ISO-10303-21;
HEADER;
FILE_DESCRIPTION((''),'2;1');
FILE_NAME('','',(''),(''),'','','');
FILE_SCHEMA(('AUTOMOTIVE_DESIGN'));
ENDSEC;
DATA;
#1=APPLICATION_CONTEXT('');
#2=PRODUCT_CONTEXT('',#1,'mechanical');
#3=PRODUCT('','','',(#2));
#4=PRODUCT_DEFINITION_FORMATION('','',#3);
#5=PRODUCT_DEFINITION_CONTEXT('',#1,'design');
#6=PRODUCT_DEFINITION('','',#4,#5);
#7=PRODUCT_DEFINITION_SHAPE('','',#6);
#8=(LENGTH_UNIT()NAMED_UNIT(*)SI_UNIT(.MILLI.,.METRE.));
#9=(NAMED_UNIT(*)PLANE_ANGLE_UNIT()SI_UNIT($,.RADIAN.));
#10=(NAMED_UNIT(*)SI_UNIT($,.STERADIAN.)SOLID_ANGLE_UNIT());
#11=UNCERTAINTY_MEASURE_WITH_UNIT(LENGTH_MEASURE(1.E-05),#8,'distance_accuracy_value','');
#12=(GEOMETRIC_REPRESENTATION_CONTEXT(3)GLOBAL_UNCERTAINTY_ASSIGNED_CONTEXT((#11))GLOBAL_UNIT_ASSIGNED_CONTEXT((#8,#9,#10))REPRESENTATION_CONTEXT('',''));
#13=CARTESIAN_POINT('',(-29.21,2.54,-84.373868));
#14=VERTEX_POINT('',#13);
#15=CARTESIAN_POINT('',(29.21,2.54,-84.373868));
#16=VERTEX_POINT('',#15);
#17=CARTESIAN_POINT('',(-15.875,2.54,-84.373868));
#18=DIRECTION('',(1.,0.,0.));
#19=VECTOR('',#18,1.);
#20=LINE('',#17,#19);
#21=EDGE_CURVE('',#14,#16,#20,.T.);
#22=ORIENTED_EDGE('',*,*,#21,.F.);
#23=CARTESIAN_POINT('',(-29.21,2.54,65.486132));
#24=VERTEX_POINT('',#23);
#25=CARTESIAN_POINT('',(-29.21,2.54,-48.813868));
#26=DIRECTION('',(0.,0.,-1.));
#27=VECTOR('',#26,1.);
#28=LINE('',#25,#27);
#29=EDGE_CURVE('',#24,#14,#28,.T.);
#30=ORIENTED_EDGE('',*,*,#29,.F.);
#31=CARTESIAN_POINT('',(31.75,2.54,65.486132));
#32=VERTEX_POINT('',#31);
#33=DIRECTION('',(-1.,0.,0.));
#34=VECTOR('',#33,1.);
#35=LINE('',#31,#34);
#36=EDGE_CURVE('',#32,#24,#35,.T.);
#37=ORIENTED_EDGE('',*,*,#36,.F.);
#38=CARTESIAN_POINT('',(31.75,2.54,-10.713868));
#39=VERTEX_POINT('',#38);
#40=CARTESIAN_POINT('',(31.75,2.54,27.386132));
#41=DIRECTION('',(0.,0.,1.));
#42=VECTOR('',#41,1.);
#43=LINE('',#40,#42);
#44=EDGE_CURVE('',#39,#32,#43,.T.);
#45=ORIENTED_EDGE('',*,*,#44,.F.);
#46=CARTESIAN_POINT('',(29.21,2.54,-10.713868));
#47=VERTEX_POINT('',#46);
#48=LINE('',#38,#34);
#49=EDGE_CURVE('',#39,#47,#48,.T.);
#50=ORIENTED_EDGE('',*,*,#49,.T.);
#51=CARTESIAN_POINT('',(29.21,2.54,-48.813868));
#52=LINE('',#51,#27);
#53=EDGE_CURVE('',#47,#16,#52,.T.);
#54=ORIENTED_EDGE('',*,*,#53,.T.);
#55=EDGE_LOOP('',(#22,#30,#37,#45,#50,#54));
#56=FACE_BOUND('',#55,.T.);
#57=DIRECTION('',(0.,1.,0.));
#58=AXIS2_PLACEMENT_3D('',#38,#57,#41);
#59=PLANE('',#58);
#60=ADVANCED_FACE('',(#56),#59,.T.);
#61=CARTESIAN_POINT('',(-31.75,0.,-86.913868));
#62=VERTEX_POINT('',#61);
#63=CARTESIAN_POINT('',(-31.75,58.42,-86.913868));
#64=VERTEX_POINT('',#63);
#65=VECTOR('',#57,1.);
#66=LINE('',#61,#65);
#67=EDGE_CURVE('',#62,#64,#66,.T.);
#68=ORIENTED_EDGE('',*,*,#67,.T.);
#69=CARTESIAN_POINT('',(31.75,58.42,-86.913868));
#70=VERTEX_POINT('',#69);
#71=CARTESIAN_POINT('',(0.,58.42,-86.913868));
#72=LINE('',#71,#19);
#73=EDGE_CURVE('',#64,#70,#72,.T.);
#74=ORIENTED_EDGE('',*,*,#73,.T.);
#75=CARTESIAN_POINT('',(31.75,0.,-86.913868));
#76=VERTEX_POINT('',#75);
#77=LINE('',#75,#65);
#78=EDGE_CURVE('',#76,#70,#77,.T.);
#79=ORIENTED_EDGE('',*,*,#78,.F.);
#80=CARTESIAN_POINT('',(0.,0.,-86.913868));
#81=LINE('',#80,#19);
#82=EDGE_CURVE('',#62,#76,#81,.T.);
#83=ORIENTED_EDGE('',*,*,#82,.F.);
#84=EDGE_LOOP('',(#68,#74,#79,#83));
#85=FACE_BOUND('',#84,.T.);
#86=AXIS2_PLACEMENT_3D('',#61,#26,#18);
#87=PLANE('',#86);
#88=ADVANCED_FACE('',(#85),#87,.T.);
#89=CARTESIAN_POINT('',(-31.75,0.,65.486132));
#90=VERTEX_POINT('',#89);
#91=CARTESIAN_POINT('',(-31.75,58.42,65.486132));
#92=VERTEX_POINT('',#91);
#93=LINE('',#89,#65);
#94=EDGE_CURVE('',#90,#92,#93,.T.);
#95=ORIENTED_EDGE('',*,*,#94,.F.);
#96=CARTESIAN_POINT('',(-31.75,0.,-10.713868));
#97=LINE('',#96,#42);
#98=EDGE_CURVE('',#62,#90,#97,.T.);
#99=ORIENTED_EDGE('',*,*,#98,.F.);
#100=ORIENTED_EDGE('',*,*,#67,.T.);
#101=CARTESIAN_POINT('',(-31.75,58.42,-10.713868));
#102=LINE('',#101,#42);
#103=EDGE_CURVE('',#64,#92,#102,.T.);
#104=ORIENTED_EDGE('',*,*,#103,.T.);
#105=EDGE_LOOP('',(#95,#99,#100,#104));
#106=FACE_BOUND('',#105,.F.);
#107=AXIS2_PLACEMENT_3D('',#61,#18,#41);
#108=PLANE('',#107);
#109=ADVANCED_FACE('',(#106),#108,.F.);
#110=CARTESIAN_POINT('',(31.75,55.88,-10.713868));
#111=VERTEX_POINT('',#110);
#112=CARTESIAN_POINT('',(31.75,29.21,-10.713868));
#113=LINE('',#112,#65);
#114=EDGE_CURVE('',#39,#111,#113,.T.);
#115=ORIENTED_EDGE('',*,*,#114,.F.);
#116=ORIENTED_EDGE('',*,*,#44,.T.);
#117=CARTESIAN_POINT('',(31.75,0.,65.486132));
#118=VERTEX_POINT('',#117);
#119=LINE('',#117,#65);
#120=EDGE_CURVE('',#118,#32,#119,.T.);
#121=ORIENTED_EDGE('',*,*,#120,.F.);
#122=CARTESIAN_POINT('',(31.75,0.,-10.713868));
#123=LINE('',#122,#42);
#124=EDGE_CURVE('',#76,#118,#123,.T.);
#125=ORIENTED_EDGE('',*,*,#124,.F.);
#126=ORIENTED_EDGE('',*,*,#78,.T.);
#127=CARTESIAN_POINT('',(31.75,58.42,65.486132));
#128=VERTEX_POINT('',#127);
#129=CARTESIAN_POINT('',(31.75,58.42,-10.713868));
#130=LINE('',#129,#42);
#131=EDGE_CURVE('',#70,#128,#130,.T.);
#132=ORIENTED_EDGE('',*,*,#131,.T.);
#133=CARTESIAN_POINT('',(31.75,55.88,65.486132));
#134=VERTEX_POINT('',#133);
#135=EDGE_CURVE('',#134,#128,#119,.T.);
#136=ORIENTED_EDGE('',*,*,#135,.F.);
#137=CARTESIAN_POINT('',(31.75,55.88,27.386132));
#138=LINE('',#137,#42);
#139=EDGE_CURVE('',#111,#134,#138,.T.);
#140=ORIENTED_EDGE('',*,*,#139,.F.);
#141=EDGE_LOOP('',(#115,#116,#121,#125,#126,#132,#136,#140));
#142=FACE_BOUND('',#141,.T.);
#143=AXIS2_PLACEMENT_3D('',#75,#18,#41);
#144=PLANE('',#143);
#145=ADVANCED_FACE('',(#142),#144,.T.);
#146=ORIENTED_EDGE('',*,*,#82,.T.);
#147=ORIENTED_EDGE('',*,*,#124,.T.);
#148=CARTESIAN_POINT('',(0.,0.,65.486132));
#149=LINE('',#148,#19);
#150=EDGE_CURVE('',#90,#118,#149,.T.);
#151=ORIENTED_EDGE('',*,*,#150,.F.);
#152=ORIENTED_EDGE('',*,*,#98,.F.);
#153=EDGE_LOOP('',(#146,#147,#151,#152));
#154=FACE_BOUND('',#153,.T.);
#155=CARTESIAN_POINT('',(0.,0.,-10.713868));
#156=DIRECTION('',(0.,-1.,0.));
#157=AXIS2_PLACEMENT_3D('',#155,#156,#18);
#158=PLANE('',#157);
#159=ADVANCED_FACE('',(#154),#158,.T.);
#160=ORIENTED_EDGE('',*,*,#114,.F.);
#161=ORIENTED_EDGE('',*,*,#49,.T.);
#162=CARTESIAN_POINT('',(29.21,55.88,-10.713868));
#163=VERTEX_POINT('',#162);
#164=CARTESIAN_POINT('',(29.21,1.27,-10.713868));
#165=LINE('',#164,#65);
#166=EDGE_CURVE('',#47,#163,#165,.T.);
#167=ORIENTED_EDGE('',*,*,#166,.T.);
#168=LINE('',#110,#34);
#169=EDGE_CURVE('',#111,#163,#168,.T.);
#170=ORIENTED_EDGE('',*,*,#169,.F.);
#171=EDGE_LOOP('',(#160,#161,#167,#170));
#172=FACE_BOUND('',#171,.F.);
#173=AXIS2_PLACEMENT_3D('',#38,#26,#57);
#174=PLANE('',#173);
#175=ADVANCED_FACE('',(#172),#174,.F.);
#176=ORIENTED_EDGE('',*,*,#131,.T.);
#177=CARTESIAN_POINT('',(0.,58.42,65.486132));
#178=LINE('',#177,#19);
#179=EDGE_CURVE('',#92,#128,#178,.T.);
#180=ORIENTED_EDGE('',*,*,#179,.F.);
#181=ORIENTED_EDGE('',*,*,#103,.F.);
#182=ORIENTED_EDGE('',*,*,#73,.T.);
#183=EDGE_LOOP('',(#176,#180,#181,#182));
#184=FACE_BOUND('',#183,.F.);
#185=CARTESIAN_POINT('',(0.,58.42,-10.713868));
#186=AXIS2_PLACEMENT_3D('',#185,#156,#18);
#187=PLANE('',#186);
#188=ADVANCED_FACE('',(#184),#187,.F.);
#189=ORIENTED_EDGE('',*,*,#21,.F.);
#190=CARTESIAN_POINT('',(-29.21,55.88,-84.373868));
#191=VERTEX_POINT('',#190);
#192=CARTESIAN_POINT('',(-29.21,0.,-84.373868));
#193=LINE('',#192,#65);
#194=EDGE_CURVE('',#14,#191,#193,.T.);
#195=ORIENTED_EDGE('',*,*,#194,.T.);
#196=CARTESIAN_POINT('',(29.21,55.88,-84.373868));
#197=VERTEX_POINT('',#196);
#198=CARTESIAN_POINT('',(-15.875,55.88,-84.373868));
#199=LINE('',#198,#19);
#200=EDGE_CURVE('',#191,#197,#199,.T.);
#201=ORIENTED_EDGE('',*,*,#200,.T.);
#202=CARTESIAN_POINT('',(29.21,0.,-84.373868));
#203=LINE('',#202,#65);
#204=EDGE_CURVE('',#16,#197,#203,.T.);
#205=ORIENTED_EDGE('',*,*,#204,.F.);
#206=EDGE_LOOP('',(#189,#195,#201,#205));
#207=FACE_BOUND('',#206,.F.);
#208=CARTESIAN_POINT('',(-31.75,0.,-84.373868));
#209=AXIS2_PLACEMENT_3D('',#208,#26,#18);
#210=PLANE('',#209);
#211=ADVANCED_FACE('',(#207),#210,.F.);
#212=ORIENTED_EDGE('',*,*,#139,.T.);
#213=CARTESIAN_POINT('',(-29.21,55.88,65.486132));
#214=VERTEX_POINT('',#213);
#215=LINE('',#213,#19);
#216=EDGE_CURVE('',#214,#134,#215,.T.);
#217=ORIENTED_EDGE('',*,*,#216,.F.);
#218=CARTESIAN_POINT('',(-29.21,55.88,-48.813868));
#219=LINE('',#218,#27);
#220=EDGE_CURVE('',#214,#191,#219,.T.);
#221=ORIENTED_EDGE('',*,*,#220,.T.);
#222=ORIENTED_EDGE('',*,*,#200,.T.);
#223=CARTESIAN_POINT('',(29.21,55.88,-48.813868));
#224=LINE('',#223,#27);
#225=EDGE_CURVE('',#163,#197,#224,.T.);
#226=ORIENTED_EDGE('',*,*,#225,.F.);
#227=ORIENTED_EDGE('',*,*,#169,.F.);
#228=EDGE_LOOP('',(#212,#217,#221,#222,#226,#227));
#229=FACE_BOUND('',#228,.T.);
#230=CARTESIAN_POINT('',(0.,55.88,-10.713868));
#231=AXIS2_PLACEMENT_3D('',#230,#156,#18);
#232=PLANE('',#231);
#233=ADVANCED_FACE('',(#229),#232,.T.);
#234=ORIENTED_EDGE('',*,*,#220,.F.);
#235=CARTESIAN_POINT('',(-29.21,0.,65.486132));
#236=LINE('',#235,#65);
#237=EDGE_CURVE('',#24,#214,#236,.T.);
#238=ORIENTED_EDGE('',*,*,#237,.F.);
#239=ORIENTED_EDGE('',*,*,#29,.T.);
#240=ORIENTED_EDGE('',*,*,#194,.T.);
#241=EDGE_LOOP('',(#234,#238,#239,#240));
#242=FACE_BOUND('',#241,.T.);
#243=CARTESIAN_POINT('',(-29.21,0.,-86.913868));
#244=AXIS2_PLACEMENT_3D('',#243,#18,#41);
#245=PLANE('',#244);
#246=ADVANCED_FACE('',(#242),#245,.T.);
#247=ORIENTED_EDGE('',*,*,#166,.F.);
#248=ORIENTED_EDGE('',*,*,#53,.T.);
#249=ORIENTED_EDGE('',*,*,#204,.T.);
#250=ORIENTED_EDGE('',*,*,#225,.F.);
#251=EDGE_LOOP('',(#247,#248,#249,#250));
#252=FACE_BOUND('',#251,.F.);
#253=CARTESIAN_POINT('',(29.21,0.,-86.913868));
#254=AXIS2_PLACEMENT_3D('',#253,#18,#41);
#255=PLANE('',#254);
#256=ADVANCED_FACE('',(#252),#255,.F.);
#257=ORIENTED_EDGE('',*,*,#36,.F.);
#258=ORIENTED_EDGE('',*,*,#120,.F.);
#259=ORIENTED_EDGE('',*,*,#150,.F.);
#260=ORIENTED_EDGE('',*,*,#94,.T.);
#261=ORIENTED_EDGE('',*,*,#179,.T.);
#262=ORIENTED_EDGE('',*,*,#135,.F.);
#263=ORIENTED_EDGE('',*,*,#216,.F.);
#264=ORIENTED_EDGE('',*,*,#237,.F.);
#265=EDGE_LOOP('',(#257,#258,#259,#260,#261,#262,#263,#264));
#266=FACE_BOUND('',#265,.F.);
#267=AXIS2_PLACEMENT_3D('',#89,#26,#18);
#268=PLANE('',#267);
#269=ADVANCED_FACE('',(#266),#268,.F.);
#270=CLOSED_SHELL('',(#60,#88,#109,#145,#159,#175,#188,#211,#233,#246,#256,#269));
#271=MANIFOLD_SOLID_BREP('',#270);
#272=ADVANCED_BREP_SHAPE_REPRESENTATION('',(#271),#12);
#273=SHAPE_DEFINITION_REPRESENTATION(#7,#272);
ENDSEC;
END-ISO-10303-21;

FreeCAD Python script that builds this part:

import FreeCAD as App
import Part
import Sketcher

V = App.Vector
Q = App.Units.Quantity


def faces_at(feature, points):
    """Names of the faces that lie closest to the given points."""
    faces = feature.Shape.Faces
    near = lambda p: min(range(len(faces)), key=lambda i: faces[i].distToShape(Part.Vertex(*p))[0])
    return sorted({f"Face{near(p) + 1}" for p in points})

doc = App.newDocument("Part")
body = doc.addObject("PartDesign::Body", "Body")

sketch1 = body.newObject("Sketcher::SketchObject", "Sketch")
sketch1.AttachmentSupport = (doc.getObject("XZ_Plane"), [""])
sketch1.MapMode = "FlatFace"
sketch1.addGeometry([
    Part.LineSegment(V(-32, 65, 0), V(-32, -87, 0)),
    Part.LineSegment(V(-32, -87, 0), V(32, -87, 0)),
    Part.LineSegment(V(32, -87, 0), V(32, 65, 0)),
    Part.LineSegment(V(32, 65, 0), V(-32, 65, 0)),
], False)
sketch1.addConstraint([
    Sketcher.Constraint("Coincident", 0, 2, 1, 1),
    Sketcher.Constraint("Coincident", 1, 2, 2, 1),
    Sketcher.Constraint("Coincident", 2, 2, 3, 1),
    Sketcher.Constraint("Coincident", 3, 2, 0, 1),
    Sketcher.Constraint("Vertical", 0),
    Sketcher.Constraint("Horizontal", 1),
    Sketcher.Constraint("Vertical", 2),
    Sketcher.Constraint("Horizontal", 3),
    Sketcher.Constraint("DistanceY", 0, 2, 0, 1, Q("6 in")),
    Sketcher.Constraint("DistanceX", 1, 1, 1, 2, Q("2.5 in")),
    Sketcher.Constraint("DistanceX", 0, 2, -1, 1, Q("1.25 in")),
    Sketcher.Constraint("DistanceY", -1, 1, 2, 2, 65.486132),
])
pad1 = body.newObject("PartDesign::Pad", "Pad")
pad1.Profile = sketch1
pad1.Length = Q("2.3 in")
pad1.Reversed = True
doc.recompute()

thickness = body.newObject("PartDesign::Thickness", "Thickness")
thickness.Base = (pad1, faces_at(pad1, [(0, 29.21, 65.486)]))
thickness.Value = Q("0.1 in")
thickness.Reversed = True
thickness.Join = "Arc"

sketch2 = body.newObject("Sketcher::SketchObject", "Sketch001")
sketch2.AttachmentSupport = (doc.getObject("YZ_Plane"), [""])
sketch2.MapMode = "FlatFace"
sketch2.AttachmentOffset = App.Placement(V(0, 0, 1.25 * 25.4), App.Rotation())
sketch2.addGeometry([
    Part.LineSegment(V(3, 65, 0), V(3, -11, 0)),
    Part.LineSegment(V(3, -11, 0), V(56, -11, 0)),
    Part.LineSegment(V(56, -11, 0), V(56, 65, 0)),
    Part.LineSegment(V(56, 65, 0), V(3, 65, 0)),
], False)
sketch2.addConstraint([
    Sketcher.Constraint("Coincident", 0, 2, 1, 1),
    Sketcher.Constraint("Coincident", 1, 2, 2, 1),
    Sketcher.Constraint("Coincident", 2, 2, 3, 1),
    Sketcher.Constraint("Coincident", 3, 2, 0, 1),
    Sketcher.Constraint("Vertical", 0),
    Sketcher.Constraint("Horizontal", 1),
    Sketcher.Constraint("Vertical", 2),
    Sketcher.Constraint("Horizontal", 3),
    Sketcher.Constraint("DistanceY", 0, 2, 0, 1, Q("3 in")),
    Sketcher.Constraint("DistanceX", 1, 1, 1, 2, Q("2.1 in")),
    Sketcher.Constraint("DistanceX", -1, 1, 0, 2, Q("0.1 in")),
    Sketcher.Constraint("DistanceY", -1, 1, 2, 2, 65.486132),
])
pocket1 = body.newObject("PartDesign::Pocket", "Pocket")
pocket1.Profile = sketch2
pocket1.Length = Q("1 in")

doc.recompute()
